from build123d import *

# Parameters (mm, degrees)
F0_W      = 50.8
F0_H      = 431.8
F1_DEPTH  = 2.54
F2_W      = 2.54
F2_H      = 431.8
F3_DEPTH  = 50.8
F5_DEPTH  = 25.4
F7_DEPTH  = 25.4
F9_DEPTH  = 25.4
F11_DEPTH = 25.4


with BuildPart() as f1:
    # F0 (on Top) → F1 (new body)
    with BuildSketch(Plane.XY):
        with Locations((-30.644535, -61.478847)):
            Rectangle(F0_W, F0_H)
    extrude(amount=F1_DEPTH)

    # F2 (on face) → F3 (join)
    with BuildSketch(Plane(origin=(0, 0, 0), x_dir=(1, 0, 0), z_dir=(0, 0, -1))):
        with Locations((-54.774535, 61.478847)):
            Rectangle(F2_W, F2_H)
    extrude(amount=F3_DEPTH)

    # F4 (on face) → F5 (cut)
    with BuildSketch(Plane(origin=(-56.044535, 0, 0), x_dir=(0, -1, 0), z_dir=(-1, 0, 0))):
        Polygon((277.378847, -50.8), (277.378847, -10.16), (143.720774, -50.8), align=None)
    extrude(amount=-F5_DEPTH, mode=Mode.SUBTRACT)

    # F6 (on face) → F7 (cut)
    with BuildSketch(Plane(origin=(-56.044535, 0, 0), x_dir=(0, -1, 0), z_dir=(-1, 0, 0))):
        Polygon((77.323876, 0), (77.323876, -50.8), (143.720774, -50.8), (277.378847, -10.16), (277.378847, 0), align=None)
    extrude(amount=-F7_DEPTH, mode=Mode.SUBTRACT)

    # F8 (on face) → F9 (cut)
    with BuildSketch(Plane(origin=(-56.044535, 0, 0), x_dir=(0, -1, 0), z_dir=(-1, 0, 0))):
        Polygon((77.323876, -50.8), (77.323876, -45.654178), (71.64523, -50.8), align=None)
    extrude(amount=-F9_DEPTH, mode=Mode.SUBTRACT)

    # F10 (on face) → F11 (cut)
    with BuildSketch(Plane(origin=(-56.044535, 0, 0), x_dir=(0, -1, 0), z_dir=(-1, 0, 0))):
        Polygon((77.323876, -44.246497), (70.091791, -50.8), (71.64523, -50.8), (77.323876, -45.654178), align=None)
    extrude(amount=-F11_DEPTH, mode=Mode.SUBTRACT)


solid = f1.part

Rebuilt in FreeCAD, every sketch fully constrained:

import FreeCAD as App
import Part
import Sketcher
from FreeCAD import Vector
Q = App.Units.Quantity

doc = App.newDocument("Part")
body = doc.addObject("PartDesign::Body", "Body")

# Sketch on XY plane
sketch1 = doc.addObject("Sketcher::SketchObject", "Sketch")
body.addObject(sketch1)
sketch1.AttachmentSupport = (doc.XY_Plane, [""])
sketch1.MapMode = "FlatFace"
sketch1.addGeometry(Part.LineSegment(Vector(-56, 154, 0), Vector(-56, -277, 0)), False)
sketch1.addGeometry(Part.LineSegment(Vector(-56, -277, 0), Vector(-5, -277, 0)), False)
sketch1.addGeometry(Part.LineSegment(Vector(-5, -277, 0), Vector(-5, 154, 0)), False)
sketch1.addGeometry(Part.LineSegment(Vector(-5, 154, 0), Vector(-56, 154, 0)), False)
sketch1.addConstraint(Sketcher.Constraint("Coincident", 0, 2, 1, 1))
sketch1.addConstraint(Sketcher.Constraint("Coincident", 1, 2, 2, 1))
sketch1.addConstraint(Sketcher.Constraint("Coincident", 2, 2, 3, 1))
sketch1.addConstraint(Sketcher.Constraint("Coincident", 3, 2, 0, 1))
sketch1.addConstraint(Sketcher.Constraint("Vertical", 0))
sketch1.addConstraint(Sketcher.Constraint("Horizontal", 1))
sketch1.addConstraint(Sketcher.Constraint("Vertical", 2))
sketch1.addConstraint(Sketcher.Constraint("Horizontal", 3))
sketch1.addConstraint(Sketcher.Constraint("DistanceX", 1, 1, 1, 2, Q("2 in")))
sketch1.addConstraint(Sketcher.Constraint("DistanceY", 0, 2, 0, 1, Q("17 in")))
sketch1.addConstraint(Sketcher.Constraint("DistanceX", 0, 2, -1, 1, Q("56.044535 mm")))
sketch1.addConstraint(Sketcher.Constraint("DistanceY", 0, 2, -1, 1, Q("277.378847 mm")))
pad1 = doc.addObject("PartDesign::Pad", "Pad")
body.addObject(pad1)
pad1.Profile = sketch1
pad1.Length = Q("0.1 in")

# Sketch on XY plane
sketch2 = doc.addObject("Sketcher::SketchObject", "Sketch001")
body.addObject(sketch2)
sketch2.AttachmentSupport = (doc.XY_Plane, [""])
sketch2.MapMode = "FlatFace"
sketch2.addGeometry(Part.LineSegment(Vector(-56, -277.4, 0), Vector(-56, 154.4, 0)), False)
sketch2.addGeometry(Part.LineSegment(Vector(-56, 154.4, 0), Vector(-53.5, 154.4, 0)), False)
sketch2.addGeometry(Part.LineSegment(Vector(-53.5, 154.4, 0), Vector(-53.5, -277.4, 0)), False)
sketch2.addGeometry(Part.LineSegment(Vector(-53.5, -277.4, 0), Vector(-56, -277.4, 0)), False)
sketch2.addConstraint(Sketcher.Constraint("Coincident", 0, 2, 1, 1))
sketch2.addConstraint(Sketcher.Constraint("Coincident", 1, 2, 2, 1))
sketch2.addConstraint(Sketcher.Constraint("Coincident", 2, 2, 3, 1))
sketch2.addConstraint(Sketcher.Constraint("Coincident", 3, 2, 0, 1))
sketch2.addConstraint(Sketcher.Constraint("Vertical", 0))
sketch2.addConstraint(Sketcher.Constraint("Horizontal", 1))
sketch2.addConstraint(Sketcher.Constraint("Vertical", 2))
sketch2.addConstraint(Sketcher.Constraint("Horizontal", 3))
sketch2.addConstraint(Sketcher.Constraint("DistanceY", 0, 1, 0, 2, Q("17 in")))
sketch2.addConstraint(Sketcher.Constraint("DistanceX", 1, 1, 1, 2, Q("0.1 in")))
sketch2.addConstraint(Sketcher.Constraint("DistanceX", 0, 2, -1, 1, Q("56.044535 mm")))
sketch2.addConstraint(Sketcher.Constraint("DistanceY", -1, 1, 0, 2, Q("154.421153 mm")))
pad2 = doc.addObject("PartDesign::Pad", "Pad001")
body.addObject(pad2)
pad2.Profile = sketch2
pad2.Length = Q("2 in")
pad2.Reversed = True

# Sketch on YZ plane
sketch3 = doc.addObject("Sketcher::SketchObject", "Sketch002")
body.addObject(sketch3)
sketch3.AttachmentSupport = (doc.YZ_Plane, [""])
sketch3.MapMode = "FlatFace"
sketch3.AttachmentOffset = App.Placement(Vector(0, 0, -56.044535), App.Rotation())
sketch3.addGeometry(Part.LineSegment(Vector(-277, -51, 0), Vector(-277, -10, 0)), False)
sketch3.addGeometry(Part.LineSegment(Vector(-277, -10, 0), Vector(-144, -51, 0)), False)
sketch3.addGeometry(Part.LineSegment(Vector(-144, -51, 0), Vector(-277, -51, 0)), False)
sketch3.addConstraint(Sketcher.Constraint("Coincident", 0, 2, 1, 1))
sketch3.addConstraint(Sketcher.Constraint("Coincident", 1, 2, 2, 1))
sketch3.addConstraint(Sketcher.Constraint("Coincident", 2, 2, 0, 1))
sketch3.addConstraint(Sketcher.Constraint("Vertical", 0))
sketch3.addConstraint(Sketcher.Constraint("Horizontal", 2))
sketch3.addConstraint(Sketcher.Constraint("DistanceY", 0, 1, 0, 2, Q("1.6 in")))
sketch3.addConstraint(Sketcher.Constraint("DistanceY", 1, 2, -1, 1, Q("2 in")))
sketch3.addConstraint(Sketcher.Constraint("Distance", 1, Q("5.5 in")))
sketch3.addConstraint(Sketcher.Constraint("DistanceX", 0, 2, -1, 1, Q("277.378847 mm")))
pocket1 = doc.addObject("PartDesign::Pocket", "Pocket")
body.addObject(pocket1)
pocket1.Profile = sketch3
pocket1.Length = Q("1 in")
pocket1.Reversed = True

# Sketch on YZ plane
sketch4 = doc.addObject("Sketcher::SketchObject", "Sketch003")
body.addObject(sketch4)
sketch4.AttachmentSupport = (doc.YZ_Plane, [""])
sketch4.MapMode = "FlatFace"
sketch4.AttachmentOffset = App.Placement(Vector(0, 0, -56.044535), App.Rotation())
sketch4.addGeometry(Part.LineSegment(Vector(-77, 0, 0), Vector(-77, -51, 0)), False)
sketch4.addGeometry(Part.LineSegment(Vector(-77, -51, 0), Vector(-144, -51, 0)), False)
sketch4.addGeometry(Part.LineSegment(Vector(-144, -51, 0), Vector(-277, -10, 0)), False)
sketch4.addGeometry(Part.LineSegment(Vector(-277, -10, 0), Vector(-277, 0, 0)), False)
sketch4.addGeometry(Part.LineSegment(Vector(-277, 0, 0), Vector(-77, 0, 0)), False)
sketch4.addConstraint(Sketcher.Constraint("Coincident", 0, 2, 1, 1))
sketch4.addConstraint(Sketcher.Constraint("Coincident", 1, 2, 2, 1))
sketch4.addConstraint(Sketcher.Constraint("Coincident", 2, 2, 3, 1))
sketch4.addConstraint(Sketcher.Constraint("Coincident", 3, 2, 4, 1))
sketch4.addConstraint(Sketcher.Constraint("Coincident", 4, 2, 0, 1))
sketch4.addConstraint(Sketcher.Constraint("Vertical", 0))
sketch4.addConstraint(Sketcher.Constraint("Horizontal", 1))
sketch4.addConstraint(Sketcher.Constraint("Vertical", 3))
sketch4.addConstraint(Sketcher.Constraint("Horizontal", 4))
sketch4.addConstraint(Sketcher.Constraint("PointOnObject", 3, 2, -1))
sketch4.addConstraint(Sketcher.Constraint("DistanceY", 0, 2, 0, 1, Q("2 in")))
sketch4.addConstraint(Sketcher.Constraint("DistanceY", 3, 1, 3, 2, Q("0.4 in")))
sketch4.addConstraint(Sketcher.Constraint("Distance", 2, Q("5.5 in")))
sketch4.addConstraint(Sketcher.Constraint("DistanceX", 1, 2, 1, 1, Q("66.396898 mm")))
sketch4.addConstraint(Sketcher.Constraint("DistanceX", 0, 2, -1, 1, Q("77.323876 mm")))
pocket2 = doc.addObject("PartDesign::Pocket", "Pocket001")
body.addObject(pocket2)
pocket2.Profile = sketch4
pocket2.Length = Q("1 in")
pocket2.Reversed = True

# Sketch on YZ plane
sketch5 = doc.addObject("Sketcher::SketchObject", "Sketch004")
body.addObject(sketch5)
sketch5.AttachmentSupport = (doc.YZ_Plane, [""])
sketch5.MapMode = "FlatFace"
sketch5.AttachmentOffset = App.Placement(Vector(0, 0, -56.044535), App.Rotation())
sketch5.addGeometry(Part.LineSegment(Vector(-77, -51, 0), Vector(-77, -46, 0)), False)
sketch5.addGeometry(Part.LineSegment(Vector(-77, -46, 0), Vector(-72, -51, 0)), False)
sketch5.addGeometry(Part.LineSegment(Vector(-72, -51, 0), Vector(-77, -51, 0)), False)
sketch5.addConstraint(Sketcher.Constraint("Coincident", 0, 2, 1, 1))
sketch5.addConstraint(Sketcher.Constraint("Coincident", 1, 2, 2, 1))
sketch5.addConstraint(Sketcher.Constraint("Coincident", 2, 2, 0, 1))
sketch5.addConstraint(Sketcher.Constraint("Vertical", 0))
sketch5.addConstraint(Sketcher.Constraint("Horizontal", 2))
sketch5.addConstraint(Sketcher.Constraint("DistanceY", 1, 2, -1, 1, Q("2 in")))
sketch5.addConstraint(Sketcher.Constraint("DistanceY", 0, 1, 0, 2, Q("5.145822 mm")))
sketch5.addConstraint(Sketcher.Constraint("DistanceX", 2, 2, 2, 1, Q("5.678646 mm")))
sketch5.addConstraint(Sketcher.Constraint("DistanceX", 1, 2, -1, 1, Q("71.64523 mm")))
pocket3 = doc.addObject("PartDesign::Pocket", "Pocket002")
body.addObject(pocket3)
pocket3.Profile = sketch5
pocket3.Length = Q("1 in")
pocket3.Reversed = True

# Sketch on YZ plane
sketch6 = doc.addObject("Sketcher::SketchObject", "Sketch005")
body.addObject(sketch6)
sketch6.AttachmentSupport = (doc.YZ_Plane, [""])
sketch6.MapMode = "FlatFace"
sketch6.AttachmentOffset = App.Placement(Vector(0, 0, -56.044535), App.Rotation())
sketch6.addGeometry(Part.LineSegment(Vector(-77.3, -44.2, 0), Vector(-70.1, -50.8, 0)), False)
sketch6.addGeometry(Part.LineSegment(Vector(-70.1, -50.8, 0), Vector(-71.6, -50.8, 0)), False)
sketch6.addGeometry(Part.LineSegment(Vector(-71.6, -50.8, 0), Vector(-77.3, -45.7, 0)), False)
sketch6.addGeometry(Part.LineSegment(Vector(-77.3, -45.7, 0), Vector(-77.3, -44.2, 0)), False)
sketch6.addConstraint(Sketcher.Constraint("Coincident", 0, 2, 1, 1))
sketch6.addConstraint(Sketcher.Constraint("Coincident", 1, 2, 2, 1))
sketch6.addConstraint(Sketcher.Constraint("Coincident", 2, 2, 3, 1))
sketch6.addConstraint(Sketcher.Constraint("Coincident", 3, 2, 0, 1))
sketch6.addConstraint(Sketcher.Constraint("Horizontal", 1))
sketch6.addConstraint(Sketcher.Constraint("Vertical", 3))
sketch6.addConstraint(Sketcher.Constraint("Parallel", 0, 2))
sketch6.addConstraint(Sketcher.Constraint("DistanceY", 0, 2, -1, 1, Q("2 in")))
sketch6.addConstraint(Sketcher.Constraint("DistanceX", 1, 2, 1, 1, Q("1.553439 mm")))
sketch6.addConstraint(Sketcher.Constraint("DistanceY", 3, 1, 3, 2, Q("1.407681 mm")))
sketch6.addConstraint(Sketcher.Constraint("DistanceX", 0, 2, -1, 1, Q("70.091791 mm")))
sketch6.addConstraint(Sketcher.Constraint("DistanceY", 2, 2, -1, 1, Q("45.654178 mm")))
pocket4 = doc.addObject("PartDesign::Pocket", "Pocket003")
body.addObject(pocket4)
pocket4.Profile = sketch6
pocket4.Length = Q("1 in")
pocket4.Reversed = True

doc.recompute()
